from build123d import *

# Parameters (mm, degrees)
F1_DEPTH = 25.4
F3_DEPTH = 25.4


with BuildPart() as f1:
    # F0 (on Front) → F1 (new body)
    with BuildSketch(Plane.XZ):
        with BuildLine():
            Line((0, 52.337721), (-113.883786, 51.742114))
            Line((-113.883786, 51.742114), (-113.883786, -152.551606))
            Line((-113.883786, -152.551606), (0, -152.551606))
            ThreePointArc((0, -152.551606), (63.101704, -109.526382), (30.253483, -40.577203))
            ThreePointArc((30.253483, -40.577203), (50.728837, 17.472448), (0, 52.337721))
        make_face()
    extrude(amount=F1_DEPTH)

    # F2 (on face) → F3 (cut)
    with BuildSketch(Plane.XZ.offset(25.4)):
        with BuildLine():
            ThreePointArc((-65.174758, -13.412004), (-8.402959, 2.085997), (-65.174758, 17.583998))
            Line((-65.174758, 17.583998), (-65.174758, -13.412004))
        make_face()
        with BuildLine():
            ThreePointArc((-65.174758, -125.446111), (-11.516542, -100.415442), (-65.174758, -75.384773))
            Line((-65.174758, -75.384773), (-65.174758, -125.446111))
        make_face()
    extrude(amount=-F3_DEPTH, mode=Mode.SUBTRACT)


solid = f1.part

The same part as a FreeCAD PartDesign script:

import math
import FreeCAD as App
import Part
import Sketcher

V = App.Vector
Q = App.Units.Quantity

doc = App.newDocument("Part")
body = doc.addObject("PartDesign::Body", "Body")

# Sketch on XZ plane
sketch1 = body.newObject("Sketcher::SketchObject", "Sketch")
sketch1.AttachmentSupport = (doc.getObject("XZ_Plane"), [""])
sketch1.MapMode = "FlatFace"
sketch1.addGeometry(Part.LineSegment(V(0, 52, 0), V(-114, 52, 0)), False)
sketch1.addGeometry(Part.LineSegment(V(-114, 52, 0), V(-114, -153, 0)), False)
sketch1.addGeometry(Part.LineSegment(V(-114, -153, 0), V(0, -153, 0)), False)
sketch1.addGeometry(Part.ArcOfCircle(Part.Circle(V(6, -94, 0), V(0, 0, 1), 59), math.radians(-96), math.radians(66)), False)
sketch1.addGeometry(Part.ArcOfCircle(Part.Circle(V(3, 2, 0), V(0, 0, 1), 51), math.radians(-57), math.radians(93)), False)
sketch1.addConstraint(Sketcher.Constraint("Coincident", 0, 2, 1, 1))
sketch1.addConstraint(Sketcher.Constraint("Coincident", 1, 2, 2, 1))
sketch1.addConstraint(Sketcher.Constraint("Coincident", 2, 2, 3, 1))
sketch1.addConstraint(Sketcher.Constraint("Coincident", 3, 2, 4, 1))
sketch1.addConstraint(Sketcher.Constraint("Coincident", 4, 2, 0, 1))
sketch1.addConstraint(Sketcher.Constraint("Vertical", 1))
sketch1.addConstraint(Sketcher.Constraint("Horizontal", 2))
sketch1.addConstraint(Sketcher.Constraint("PointOnObject", 2, 2, -2))
sketch1.addConstraint(Sketcher.Constraint("PointOnObject", 4, 2, -2))
sketch1.addConstraint(Sketcher.Constraint("Radius", 3, 58.687745))
sketch1.addConstraint(Sketcher.Constraint("Radius", 4, 50.598563))
sketch1.addConstraint(Sketcher.Constraint("DistanceY", 1, 2, 1, 1, 204.29372))
sketch1.addConstraint(Sketcher.Constraint("DistanceX", 2, 1, 2, 2, 113.883786))
sketch1.addConstraint(Sketcher.Constraint("DistanceX", -1, 1, 4, 3, 2.61643))
sketch1.addConstraint(Sketcher.Constraint("DistanceY", -1, 1, 4, 3, 1.80685))
sketch1.addConstraint(Sketcher.Constraint("DistanceX", 0, 2, 3, 3, 120.329231))
sketch1.addConstraint(Sketcher.Constraint("DistanceY", 3, 3, 3, 2, 53.64167))
pad1 = body.newObject("PartDesign::Pad", "Pad")
pad1.Profile = sketch1
pad1.Length = Q("1 in")

# Sketch on XZ plane
sketch2 = body.newObject("Sketcher::SketchObject", "Sketch001")
sketch2.AttachmentSupport = (doc.getObject("XZ_Plane"), [""])
sketch2.MapMode = "FlatFace"
sketch2.AttachmentOffset = App.Placement(V(0, 0, 1 * 25.4), App.Rotation())
sketch2.addGeometry(Part.ArcOfCircle(Part.Circle(V(-39, 2, 0), V(0, 0, 1), 31), math.radians(-149), math.radians(149)), False)
sketch2.addGeometry(Part.LineSegment(V(-65, 18, 0), V(-65, -13, 0)), False)
sketch2.addGeometry(Part.ArcOfCircle(Part.Circle(V(-44, -100, 0), V(0, 0, 1), 33), math.radians(-130), math.radians(130)), False)
sketch2.addGeometry(Part.LineSegment(V(-65, -75, 0), V(-65, -125, 0)), False)
sketch2.addConstraint(Sketcher.Constraint("Coincident", 0, 1, 1, 2))
sketch2.addConstraint(Sketcher.Constraint("Coincident", 1, 1, 0, 2))
sketch2.addConstraint(Sketcher.Constraint("Coincident", 2, 1, 3, 2))
sketch2.addConstraint(Sketcher.Constraint("Coincident", 3, 1, 2, 2))
sketch2.addConstraint(Sketcher.Constraint("Vertical", 1))
sketch2.addConstraint(Sketcher.Constraint("Vertical", 3))
sketch2.addConstraint(Sketcher.Constraint("Vertical", 1, 1, 2, 1))
sketch2.addConstraint(Sketcher.Constraint("Radius", 0, 30.501281))
sketch2.addConstraint(Sketcher.Constraint("Radius", 2, 32.667304))
sketch2.addConstraint(Sketcher.Constraint("DistanceY", 3, 2, 3, 1, 50.061338))
sketch2.addConstraint(Sketcher.Constraint("DistanceY", -1, 1, 1, 1, 17.583998))
sketch2.addConstraint(Sketcher.Constraint("DistanceY", 0, 1, 0, 3, 15.498001))
sketch2.addConstraint(Sketcher.Constraint("DistanceX", 0, 3, -1, 1, 38.90424))
sketch2.addConstraint(Sketcher.Constraint("DistanceY", 2, 3, -1, 1, 100.415442))
pocket1 = body.newObject("PartDesign::Pocket", "Pocket")
pocket1.Profile = sketch2
pocket1.Length = Q("1 in")

doc.recompute()
